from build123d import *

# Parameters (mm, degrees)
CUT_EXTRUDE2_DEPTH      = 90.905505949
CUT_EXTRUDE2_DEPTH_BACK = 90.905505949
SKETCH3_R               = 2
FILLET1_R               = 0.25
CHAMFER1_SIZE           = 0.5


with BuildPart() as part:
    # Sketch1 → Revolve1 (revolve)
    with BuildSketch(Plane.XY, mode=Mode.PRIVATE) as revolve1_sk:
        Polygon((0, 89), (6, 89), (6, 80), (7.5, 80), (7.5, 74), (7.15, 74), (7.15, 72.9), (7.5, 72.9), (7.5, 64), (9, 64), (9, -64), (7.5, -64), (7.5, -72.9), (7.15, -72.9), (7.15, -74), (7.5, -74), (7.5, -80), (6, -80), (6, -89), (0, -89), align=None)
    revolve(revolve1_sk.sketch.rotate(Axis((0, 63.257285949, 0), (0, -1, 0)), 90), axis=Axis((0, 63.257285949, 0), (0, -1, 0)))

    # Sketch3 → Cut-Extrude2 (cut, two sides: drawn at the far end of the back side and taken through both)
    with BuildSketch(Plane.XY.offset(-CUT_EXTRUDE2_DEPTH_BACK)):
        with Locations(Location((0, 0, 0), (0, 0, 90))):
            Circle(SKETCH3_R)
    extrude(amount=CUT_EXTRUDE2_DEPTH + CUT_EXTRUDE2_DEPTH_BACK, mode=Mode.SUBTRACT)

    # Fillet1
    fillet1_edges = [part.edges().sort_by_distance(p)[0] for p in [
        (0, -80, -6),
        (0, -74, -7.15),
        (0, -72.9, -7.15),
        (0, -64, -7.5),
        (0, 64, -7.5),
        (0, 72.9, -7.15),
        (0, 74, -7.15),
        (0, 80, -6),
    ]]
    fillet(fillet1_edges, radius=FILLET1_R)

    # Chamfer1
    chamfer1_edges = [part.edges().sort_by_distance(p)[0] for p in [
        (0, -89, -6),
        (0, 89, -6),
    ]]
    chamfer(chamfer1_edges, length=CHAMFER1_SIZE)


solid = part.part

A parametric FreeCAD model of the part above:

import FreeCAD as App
import Part
import Sketcher


def edges_at(feature, points):
    """Names of the edges that pass closest to the given points."""
    edges = feature.Shape.Edges
    near = lambda p: min(range(len(edges)), key=lambda i: edges[i].distToShape(Part.Vertex(*p))[0])
    return sorted({f"Edge{near(p) + 1}" for p in points})


def add_polygon(sketch, points):
    """Adds a closed chain of lines whose ends are joined by coincident constraints."""
    first, n = sketch.GeometryCount, len(points)
    for a, b in zip(points, points[1:] + points[:1]):
        sketch.addGeometry(Part.LineSegment(App.Vector(*a, 0), App.Vector(*b, 0)), False)
    for i in range(n):
        sketch.addConstraint(Sketcher.Constraint("Coincident", first + i, 2, first + (i + 1) % n, 1))

doc = App.newDocument("Part")
body = doc.addObject("PartDesign::Body", "Body")

# Sketch on XY plane
sketch1 = body.newObject("Sketcher::SketchObject", "Sketch")
sketch1.AttachmentSupport = (doc.getObject("XY_Plane"), [""])
sketch1.MapMode = "FlatFace"
add_polygon(sketch1, [(6, 89), (0, 89), (0, -89), (6, -89), (6, -80), (7.5, -80), (7.5, -74), (7.15, -74), (7.15, -72.9), (7.5, -72.9), (7.5, -64), (9, -64), (9, 64), (7.5, 64), (7.5, 72.9), (7.15, 72.9), (7.15, 74), (7.5, 74), (7.5, 80), (6, 80)])  # lines 0-19
sketch1.addConstraint(Sketcher.Constraint("Horizontal", 0))
sketch1.addConstraint(Sketcher.Constraint("Vertical", 1))
sketch1.addConstraint(Sketcher.Constraint("Horizontal", 2))
sketch1.addConstraint(Sketcher.Constraint("Vertical", 3))
sketch1.addConstraint(Sketcher.Constraint("Horizontal", 4))
sketch1.addConstraint(Sketcher.Constraint("Vertical", 5))
sketch1.addConstraint(Sketcher.Constraint("Horizontal", 6))
sketch1.addConstraint(Sketcher.Constraint("Vertical", 7))
sketch1.addConstraint(Sketcher.Constraint("Horizontal", 8))
sketch1.addConstraint(Sketcher.Constraint("Vertical", 9))
sketch1.addConstraint(Sketcher.Constraint("Horizontal", 10))
sketch1.addConstraint(Sketcher.Constraint("Vertical", 11))
sketch1.addConstraint(Sketcher.Constraint("Horizontal", 12))
sketch1.addConstraint(Sketcher.Constraint("Vertical", 13))
sketch1.addConstraint(Sketcher.Constraint("Horizontal", 14))
sketch1.addConstraint(Sketcher.Constraint("Vertical", 15))
sketch1.addConstraint(Sketcher.Constraint("Horizontal", 16))
sketch1.addConstraint(Sketcher.Constraint("Vertical", 17))
sketch1.addConstraint(Sketcher.Constraint("Horizontal", 18))
sketch1.addConstraint(Sketcher.Constraint("Vertical", 19))
sketch1.addConstraint(Sketcher.Constraint("Symmetric", 0, 2, 1, 2, -1, 1))
sketch1.addConstraint(Sketcher.Constraint("Symmetric", 9, 2, 12, 2, -1))
sketch1.addConstraint(Sketcher.Constraint("Symmetric", 7, 2, 14, 2, -1))
sketch1.addConstraint(Sketcher.Constraint("Symmetric", 5, 2, 16, 2, -1))
sketch1.addConstraint(Sketcher.Constraint("Symmetric", 3, 2, 18, 2, -1))
sketch1.addConstraint(Sketcher.Constraint("Vertical", 5, 2, 8, 2))
sketch1.addConstraint(Sketcher.Constraint("Equal", 4, 10))
sketch1.addConstraint(Sketcher.Constraint("Equal", 2, 5))
sketch1.addConstraint(Sketcher.Constraint("DistanceX", 0, 2, 0, 1, 6.0))
sketch1.addConstraint(Sketcher.Constraint("DistanceY", 1, 2, 1, 1, 178.0))
sketch1.addConstraint(Sketcher.Constraint("DistanceY", 3, 1, 3, 2, 9.0))
sketch1.addConstraint(Sketcher.Constraint("DistanceY", 11, 1, 11, 2, 128.0))
sketch1.addConstraint(Sketcher.Constraint("DistanceX", 4, 1, 4, 2, 1.5))
sketch1.addConstraint(Sketcher.Constraint("DistanceY", 7, 1, 7, 2, 1.1))
sketch1.addConstraint(Sketcher.Constraint("DistanceX", 6, 2, 6, 1, 0.35))
revolution = body.newObject("PartDesign::Revolution", "Revolution")
revolution.Profile = sketch1
revolution.ReferenceAxis = (sketch1, ["V_Axis"])
revolution.Angle = 360

# Sketch on XY plane
sketch2 = body.newObject("Sketcher::SketchObject", "Sketch001")
sketch2.AttachmentSupport = (doc.getObject("XY_Plane"), [""])
sketch2.MapMode = "FlatFace"
sketch2.addGeometry(Part.Circle(App.Vector(0, 0, 0), App.Vector(0, 0, 1), 2), False)
sketch2.addConstraint(Sketcher.Constraint("Coincident", 0, 3, -1, 1))
sketch2.addConstraint(Sketcher.Constraint("Diameter", 0, 4.0))
pocket1 = body.newObject("PartDesign::Pocket", "Pocket")
pocket1.Profile = sketch2
pocket1.Type = "ThroughAll"
pocket1.Midplane = True
doc.recompute()

fillet = body.newObject("PartDesign::Fillet", "Fillet")
fillet.Base = (pocket1, edges_at(pocket1, [
    (0, -80, -6),
    (0, -74, -7.15),
    (0, -72.9, -7.15),
    (0, -64, -7.5),
    (0, 64, -7.5),
    (0, 72.9, -7.15),
    (0, 74, -7.15),
    (0, 80, -6),
]))
fillet.Radius = 0.25
doc.recompute()

chamfer = body.newObject("PartDesign::Chamfer", "Chamfer")
chamfer.Base = (fillet, edges_at(fillet, [(0, -89, -6), (0, 89, -6)]))
chamfer.Size = 0.5

doc.recompute()
